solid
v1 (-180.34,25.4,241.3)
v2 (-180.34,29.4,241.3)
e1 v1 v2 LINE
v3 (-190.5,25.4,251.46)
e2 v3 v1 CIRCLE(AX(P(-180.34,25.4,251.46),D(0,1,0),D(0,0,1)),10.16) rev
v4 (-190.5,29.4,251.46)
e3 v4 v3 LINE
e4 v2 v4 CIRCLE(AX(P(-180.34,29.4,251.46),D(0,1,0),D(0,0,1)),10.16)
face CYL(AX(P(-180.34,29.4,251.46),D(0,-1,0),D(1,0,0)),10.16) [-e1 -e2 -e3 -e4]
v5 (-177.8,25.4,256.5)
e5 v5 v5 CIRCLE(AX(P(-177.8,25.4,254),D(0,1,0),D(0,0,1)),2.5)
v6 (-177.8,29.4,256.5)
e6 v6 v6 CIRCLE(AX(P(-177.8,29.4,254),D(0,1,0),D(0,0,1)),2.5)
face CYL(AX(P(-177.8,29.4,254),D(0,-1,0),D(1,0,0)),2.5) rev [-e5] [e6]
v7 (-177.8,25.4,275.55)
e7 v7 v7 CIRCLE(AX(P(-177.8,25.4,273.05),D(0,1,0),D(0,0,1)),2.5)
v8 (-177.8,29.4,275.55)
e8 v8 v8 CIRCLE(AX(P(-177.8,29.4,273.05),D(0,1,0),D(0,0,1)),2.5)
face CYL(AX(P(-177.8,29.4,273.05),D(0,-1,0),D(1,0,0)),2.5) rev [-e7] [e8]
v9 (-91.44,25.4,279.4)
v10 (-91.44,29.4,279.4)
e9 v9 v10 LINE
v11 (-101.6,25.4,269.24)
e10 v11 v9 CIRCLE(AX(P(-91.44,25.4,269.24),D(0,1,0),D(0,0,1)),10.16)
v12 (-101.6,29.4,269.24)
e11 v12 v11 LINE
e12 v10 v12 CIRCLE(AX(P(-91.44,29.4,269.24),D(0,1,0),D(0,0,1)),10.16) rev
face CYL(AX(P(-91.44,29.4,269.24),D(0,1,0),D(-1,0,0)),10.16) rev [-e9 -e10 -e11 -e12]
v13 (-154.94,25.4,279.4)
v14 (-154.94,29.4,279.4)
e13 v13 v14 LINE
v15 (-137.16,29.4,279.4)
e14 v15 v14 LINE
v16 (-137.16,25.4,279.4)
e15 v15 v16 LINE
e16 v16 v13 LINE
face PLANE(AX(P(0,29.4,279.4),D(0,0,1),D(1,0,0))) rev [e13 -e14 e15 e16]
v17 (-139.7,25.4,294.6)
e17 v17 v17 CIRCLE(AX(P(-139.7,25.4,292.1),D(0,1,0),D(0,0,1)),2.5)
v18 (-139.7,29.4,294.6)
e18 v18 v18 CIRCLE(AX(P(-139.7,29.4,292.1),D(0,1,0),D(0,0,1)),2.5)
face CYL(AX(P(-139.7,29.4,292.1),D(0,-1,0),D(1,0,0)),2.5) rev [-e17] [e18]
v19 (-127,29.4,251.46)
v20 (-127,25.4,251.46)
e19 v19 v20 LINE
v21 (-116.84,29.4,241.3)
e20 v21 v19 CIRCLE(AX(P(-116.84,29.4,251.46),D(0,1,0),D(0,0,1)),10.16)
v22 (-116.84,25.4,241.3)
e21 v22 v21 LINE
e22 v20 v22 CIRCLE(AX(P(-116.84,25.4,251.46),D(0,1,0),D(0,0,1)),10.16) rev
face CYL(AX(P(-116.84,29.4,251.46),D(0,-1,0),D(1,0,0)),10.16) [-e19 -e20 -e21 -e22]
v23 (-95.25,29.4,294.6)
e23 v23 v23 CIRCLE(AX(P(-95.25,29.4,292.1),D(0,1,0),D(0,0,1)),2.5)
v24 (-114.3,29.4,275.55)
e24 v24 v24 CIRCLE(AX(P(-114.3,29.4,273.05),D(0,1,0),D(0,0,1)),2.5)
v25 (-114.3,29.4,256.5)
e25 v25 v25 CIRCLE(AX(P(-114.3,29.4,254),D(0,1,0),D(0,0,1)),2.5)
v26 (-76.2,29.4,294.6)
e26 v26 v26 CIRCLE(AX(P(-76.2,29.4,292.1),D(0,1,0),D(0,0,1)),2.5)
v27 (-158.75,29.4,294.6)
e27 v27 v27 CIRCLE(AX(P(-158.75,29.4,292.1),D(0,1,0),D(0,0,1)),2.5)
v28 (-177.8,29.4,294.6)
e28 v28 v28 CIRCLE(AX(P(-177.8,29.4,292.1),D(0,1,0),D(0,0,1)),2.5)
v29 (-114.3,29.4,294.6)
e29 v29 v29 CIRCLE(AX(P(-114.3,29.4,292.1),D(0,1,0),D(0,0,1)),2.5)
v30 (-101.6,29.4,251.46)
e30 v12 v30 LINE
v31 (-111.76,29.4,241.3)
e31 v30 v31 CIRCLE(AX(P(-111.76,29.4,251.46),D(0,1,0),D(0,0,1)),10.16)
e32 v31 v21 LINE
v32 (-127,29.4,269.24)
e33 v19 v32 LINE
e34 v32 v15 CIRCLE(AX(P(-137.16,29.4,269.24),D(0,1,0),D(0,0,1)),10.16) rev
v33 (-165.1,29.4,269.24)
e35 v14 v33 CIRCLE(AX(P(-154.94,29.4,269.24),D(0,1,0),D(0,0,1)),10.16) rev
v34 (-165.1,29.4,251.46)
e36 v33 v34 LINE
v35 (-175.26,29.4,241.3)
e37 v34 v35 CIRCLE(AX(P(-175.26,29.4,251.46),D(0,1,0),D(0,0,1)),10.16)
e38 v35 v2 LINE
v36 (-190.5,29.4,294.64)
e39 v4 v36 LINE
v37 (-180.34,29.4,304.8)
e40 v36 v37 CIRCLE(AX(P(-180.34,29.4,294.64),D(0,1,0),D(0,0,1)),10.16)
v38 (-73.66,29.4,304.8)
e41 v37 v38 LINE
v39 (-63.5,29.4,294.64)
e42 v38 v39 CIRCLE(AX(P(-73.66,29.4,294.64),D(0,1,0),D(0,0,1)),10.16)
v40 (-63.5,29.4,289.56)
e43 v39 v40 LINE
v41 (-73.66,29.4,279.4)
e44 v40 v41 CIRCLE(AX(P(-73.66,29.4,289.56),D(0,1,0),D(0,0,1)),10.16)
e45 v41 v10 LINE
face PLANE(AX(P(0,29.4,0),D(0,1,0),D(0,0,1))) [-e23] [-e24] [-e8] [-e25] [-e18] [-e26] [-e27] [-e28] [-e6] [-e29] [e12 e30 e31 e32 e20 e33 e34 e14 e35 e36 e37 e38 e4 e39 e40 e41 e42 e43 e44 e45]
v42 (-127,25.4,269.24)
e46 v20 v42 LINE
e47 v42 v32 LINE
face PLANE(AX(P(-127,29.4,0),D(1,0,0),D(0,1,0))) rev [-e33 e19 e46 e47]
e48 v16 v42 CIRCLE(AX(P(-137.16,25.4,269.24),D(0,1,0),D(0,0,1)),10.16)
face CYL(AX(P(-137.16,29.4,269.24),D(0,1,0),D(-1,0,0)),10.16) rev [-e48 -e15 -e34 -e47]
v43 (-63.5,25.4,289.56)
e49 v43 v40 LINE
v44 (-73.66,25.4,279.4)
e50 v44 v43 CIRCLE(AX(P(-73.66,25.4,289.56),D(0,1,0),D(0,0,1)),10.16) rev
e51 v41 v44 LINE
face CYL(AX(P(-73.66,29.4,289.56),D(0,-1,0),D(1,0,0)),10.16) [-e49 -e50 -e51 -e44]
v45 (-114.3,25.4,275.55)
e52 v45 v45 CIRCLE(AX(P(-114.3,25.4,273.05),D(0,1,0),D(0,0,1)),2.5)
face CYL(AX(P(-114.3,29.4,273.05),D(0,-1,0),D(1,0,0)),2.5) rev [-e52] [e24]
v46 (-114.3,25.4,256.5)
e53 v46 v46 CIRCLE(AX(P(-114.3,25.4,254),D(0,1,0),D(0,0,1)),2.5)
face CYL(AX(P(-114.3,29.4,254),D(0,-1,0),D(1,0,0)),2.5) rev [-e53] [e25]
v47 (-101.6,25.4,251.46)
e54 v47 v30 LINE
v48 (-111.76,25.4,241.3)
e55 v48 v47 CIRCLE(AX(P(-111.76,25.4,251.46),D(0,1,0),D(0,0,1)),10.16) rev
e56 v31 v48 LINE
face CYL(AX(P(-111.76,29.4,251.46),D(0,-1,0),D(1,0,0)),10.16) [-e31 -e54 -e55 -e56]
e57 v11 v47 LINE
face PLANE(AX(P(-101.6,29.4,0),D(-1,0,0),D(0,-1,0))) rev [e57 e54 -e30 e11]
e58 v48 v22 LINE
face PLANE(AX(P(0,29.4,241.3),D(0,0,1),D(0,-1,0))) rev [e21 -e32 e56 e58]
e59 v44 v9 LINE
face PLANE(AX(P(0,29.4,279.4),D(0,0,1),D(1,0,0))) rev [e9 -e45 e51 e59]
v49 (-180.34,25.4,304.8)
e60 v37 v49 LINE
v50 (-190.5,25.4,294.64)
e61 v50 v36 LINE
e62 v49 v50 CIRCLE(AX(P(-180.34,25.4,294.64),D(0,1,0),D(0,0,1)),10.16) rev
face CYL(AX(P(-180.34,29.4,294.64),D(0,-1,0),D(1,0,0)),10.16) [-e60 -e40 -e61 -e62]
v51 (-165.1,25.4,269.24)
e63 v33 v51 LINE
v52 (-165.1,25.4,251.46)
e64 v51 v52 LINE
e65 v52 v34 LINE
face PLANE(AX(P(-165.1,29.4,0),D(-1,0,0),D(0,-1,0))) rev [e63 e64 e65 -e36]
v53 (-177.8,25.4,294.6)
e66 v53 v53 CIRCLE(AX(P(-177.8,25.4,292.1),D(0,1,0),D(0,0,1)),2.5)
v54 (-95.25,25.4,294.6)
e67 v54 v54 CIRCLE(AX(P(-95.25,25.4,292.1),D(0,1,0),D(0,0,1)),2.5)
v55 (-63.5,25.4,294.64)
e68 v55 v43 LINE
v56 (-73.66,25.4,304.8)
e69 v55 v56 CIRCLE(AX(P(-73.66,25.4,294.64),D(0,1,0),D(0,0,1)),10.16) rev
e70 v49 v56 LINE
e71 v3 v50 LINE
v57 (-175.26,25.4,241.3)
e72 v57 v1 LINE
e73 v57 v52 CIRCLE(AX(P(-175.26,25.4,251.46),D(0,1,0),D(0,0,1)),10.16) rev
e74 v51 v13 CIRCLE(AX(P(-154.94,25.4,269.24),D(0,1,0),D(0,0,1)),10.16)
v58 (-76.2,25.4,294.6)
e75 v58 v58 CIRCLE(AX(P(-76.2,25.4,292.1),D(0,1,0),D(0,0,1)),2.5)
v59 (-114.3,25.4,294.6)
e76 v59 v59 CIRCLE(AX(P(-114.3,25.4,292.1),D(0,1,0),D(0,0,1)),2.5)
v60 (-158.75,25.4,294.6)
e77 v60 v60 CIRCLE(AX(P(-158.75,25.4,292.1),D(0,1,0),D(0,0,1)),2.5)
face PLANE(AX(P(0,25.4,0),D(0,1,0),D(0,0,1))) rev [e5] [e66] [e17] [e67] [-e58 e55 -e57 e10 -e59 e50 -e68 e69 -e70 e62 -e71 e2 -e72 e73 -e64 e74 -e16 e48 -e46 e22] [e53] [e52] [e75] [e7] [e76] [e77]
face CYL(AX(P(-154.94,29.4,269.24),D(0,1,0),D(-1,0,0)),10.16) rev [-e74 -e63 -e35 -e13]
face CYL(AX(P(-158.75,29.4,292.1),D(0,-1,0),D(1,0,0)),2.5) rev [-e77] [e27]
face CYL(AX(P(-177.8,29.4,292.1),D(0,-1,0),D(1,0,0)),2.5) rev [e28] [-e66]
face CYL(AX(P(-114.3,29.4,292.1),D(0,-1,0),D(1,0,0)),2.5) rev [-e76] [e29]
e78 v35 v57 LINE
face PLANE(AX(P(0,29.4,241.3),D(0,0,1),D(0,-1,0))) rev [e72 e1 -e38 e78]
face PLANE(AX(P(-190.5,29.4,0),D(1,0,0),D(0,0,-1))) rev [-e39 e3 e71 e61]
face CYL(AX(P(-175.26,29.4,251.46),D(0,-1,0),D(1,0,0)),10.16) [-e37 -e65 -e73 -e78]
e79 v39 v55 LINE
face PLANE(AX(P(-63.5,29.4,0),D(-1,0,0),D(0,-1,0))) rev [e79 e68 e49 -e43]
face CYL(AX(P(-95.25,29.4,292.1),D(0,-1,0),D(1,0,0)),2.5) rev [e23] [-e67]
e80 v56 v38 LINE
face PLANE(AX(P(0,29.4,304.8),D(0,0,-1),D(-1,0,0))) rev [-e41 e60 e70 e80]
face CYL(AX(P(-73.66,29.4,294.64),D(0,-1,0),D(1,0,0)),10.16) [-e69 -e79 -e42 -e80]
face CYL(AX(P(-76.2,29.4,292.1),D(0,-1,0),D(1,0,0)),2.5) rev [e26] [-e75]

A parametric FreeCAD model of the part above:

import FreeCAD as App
import Part
import Sketcher
Q = App.Units.Quantity


def edges_at(feature, points):
    """Names of the edges that pass closest to the given points."""
    edges = feature.Shape.Edges
    near = lambda p: min(range(len(edges)), key=lambda i: edges[i].distToShape(Part.Vertex(*p))[0])
    return sorted({f"Edge{near(p) + 1}" for p in points})

doc = App.newDocument("Part")
body = doc.addObject("PartDesign::Body", "Body")

# Sketch on XZ plane
sketch1 = body.newObject("Sketcher::SketchObject", "Sketch")
sketch1.AttachmentSupport = (doc.getObject("XZ_Plane"), [""])
sketch1.MapMode = "FlatFace"
sketch1.AttachmentOffset = App.Placement(App.Vector(0, 0, -1 * 25.4), App.Rotation())
sketch1.addGeometry([
    Part.LineSegment(App.Vector(-190.5, 241.3, 0), App.Vector(-190.5, 304.8, 0)),  # 0
    Part.LineSegment(App.Vector(-190.5, 304.8, 0), App.Vector(-63.5, 304.8, 0)),  # 1
    Part.LineSegment(App.Vector(-63.5, 304.8, 0), App.Vector(-63.5, 279.4, 0)),  # 2
    Part.LineSegment(App.Vector(-63.5, 279.4, 0), App.Vector(-101.6, 279.4, 0)),  # 3
    Part.LineSegment(App.Vector(-101.6, 279.4, 0), App.Vector(-101.6, 241.3, 0)),  # 4
    Part.LineSegment(App.Vector(-101.6, 241.3, 0), App.Vector(-127, 241.3, 0)),  # 5
    Part.LineSegment(App.Vector(-127, 241.3, 0), App.Vector(-127, 279.4, 0)),  # 6
    Part.LineSegment(App.Vector(-127, 279.4, 0), App.Vector(-165.1, 279.4, 0)),  # 7
    Part.LineSegment(App.Vector(-165.1, 279.4, 0), App.Vector(-165.1, 241.3, 0)),  # 8
    Part.LineSegment(App.Vector(-165.1, 241.3, 0), App.Vector(-190.5, 241.3, 0)),  # 9
    Part.Circle(App.Vector(-177.8, 292.1, 0), App.Vector(0, 0, 1), 2.5),  # 10
    Part.Circle(App.Vector(-158.8, 292.1, 0), App.Vector(0, 0, 1), 2.5),  # 11
    Part.Circle(App.Vector(-139.7, 292.1, 0), App.Vector(0, 0, 1), 2.5),  # 12
    Part.Circle(App.Vector(-114.3, 292.1, 0), App.Vector(0, 0, 1), 2.5),  # 13
    Part.Circle(App.Vector(-95.2, 292.1, 0), App.Vector(0, 0, 1), 2.5),  # 14
    Part.Circle(App.Vector(-76.2, 292.1, 0), App.Vector(0, 0, 1), 2.5),  # 15
    Part.Circle(App.Vector(-177.8, 273.1, 0), App.Vector(0, 0, 1), 2.5),  # 16
    Part.Circle(App.Vector(-177.8, 254, 0), App.Vector(0, 0, 1), 2.5),  # 17
    Part.Circle(App.Vector(-114.3, 273.1, 0), App.Vector(0, 0, 1), 2.5),  # 18
    Part.Circle(App.Vector(-114.3, 254, 0), App.Vector(0, 0, 1), 2.5),  # 19
], False)
sketch1.addConstraint([
    Sketcher.Constraint("Coincident", 0, 2, 1, 1),
    Sketcher.Constraint("Coincident", 1, 2, 2, 1),
    Sketcher.Constraint("Coincident", 2, 2, 3, 1),
    Sketcher.Constraint("Coincident", 3, 2, 4, 1),
    Sketcher.Constraint("Coincident", 4, 2, 5, 1),
    Sketcher.Constraint("Coincident", 5, 2, 6, 1),
    Sketcher.Constraint("Coincident", 6, 2, 7, 1),
    Sketcher.Constraint("Coincident", 7, 2, 8, 1),
    Sketcher.Constraint("Coincident", 8, 2, 9, 1),
    Sketcher.Constraint("Coincident", 9, 2, 0, 1),
    Sketcher.Constraint("Vertical", 0),
    Sketcher.Constraint("Horizontal", 1),
    Sketcher.Constraint("Vertical", 2),
    Sketcher.Constraint("Horizontal", 3),
    Sketcher.Constraint("Vertical", 4),
    Sketcher.Constraint("Horizontal", 5),
    Sketcher.Constraint("Vertical", 6),
    Sketcher.Constraint("Horizontal", 7),
    Sketcher.Constraint("Vertical", 8),
    Sketcher.Constraint("Horizontal", 9),
    Sketcher.Constraint("Equal", 10, 11),
    Sketcher.Constraint("Equal", 11, 12),
    Sketcher.Constraint("Equal", 12, 13),
    Sketcher.Constraint("Equal", 13, 14),
    Sketcher.Constraint("Equal", 14, 15),
    Sketcher.Constraint("Equal", 15, 16),
    Sketcher.Constraint("Equal", 16, 17),
    Sketcher.Constraint("Equal", 17, 18),
    Sketcher.Constraint("Equal", 18, 19),
    Sketcher.Constraint("Horizontal", 10, 3, 11, 3),
    Sketcher.Constraint("Horizontal", 11, 3, 12, 3),
    Sketcher.Constraint("Horizontal", 12, 3, 13, 3),
    Sketcher.Constraint("Horizontal", 13, 3, 14, 3),
    Sketcher.Constraint("Horizontal", 14, 3, 15, 3),
    Sketcher.Constraint("Horizontal", 16, 3, 18, 3),
    Sketcher.Constraint("Horizontal", 17, 3, 19, 3),
    Sketcher.Constraint("Horizontal", 3, 2, 6, 2),
    Sketcher.Constraint("Horizontal", 5, 2, 8, 2),
    Sketcher.Constraint("Vertical", 10, 3, 16, 3),
    Sketcher.Constraint("Vertical", 16, 3, 17, 3),
    Sketcher.Constraint("Vertical", 13, 3, 18, 3),
    Sketcher.Constraint("Vertical", 18, 3, 19, 3),
    Sketcher.Constraint("Equal", 3, 7),
    Sketcher.Constraint("Equal", 5, 9),
    Sketcher.Constraint("Equal", 9, 2),
    Sketcher.Constraint("Equal", 7, 4),
    Sketcher.Constraint("DistanceX", 1, 1, 1, 2, Q("5 in")),
    Sketcher.Constraint("DistanceX", 5, 2, 5, 1, Q("1 in")),
    Sketcher.Constraint("DistanceX", 10, 3, -1, 1, Q("7 in")),
    Sketcher.Constraint("DistanceX", 15, 3, -1, 1, Q("3 in")),
    Sketcher.Constraint("DistanceY", -1, 1, 17, 3, Q("10 in")),
    Sketcher.Constraint("DistanceY", -1, 1, 0, 2, Q("12 in")),
    Sketcher.Constraint("DistanceX", 3, 2, -1, 1, Q("4 in")),
    Sketcher.Constraint("DistanceX", 12, 3, 13, 3, Q("1 in")),
    Sketcher.Constraint("DistanceX", 0, 2, 12, 3, Q("2 in")),
    Sketcher.Constraint("DistanceY", 4, 2, 14, 3, Q("2 in")),
    Sketcher.Constraint("DistanceX", 11, 3, 14, 3, Q("2.5 in")),
    Sketcher.Constraint("Diameter", 10, Q("5 mm")),
    Sketcher.Constraint("DistanceX", 11, 3, -1, 1, Q("6.25 in")),
    Sketcher.Constraint("DistanceY", -1, 1, 16, 3, Q("10.75 in")),
])
pad1 = body.newObject("PartDesign::Pad", "Pad")
pad1.Profile = sketch1
pad1.Length = 4
pad1.Reversed = True
doc.recompute()

fillet = body.newObject("PartDesign::Fillet", "Fillet")
fillet.Base = (pad1, edges_at(pad1, [
    (-190.5, 27.4, 304.8),
    (-190.5, 27.4, 241.3),
    (-165.1, 27.4, 241.3),
    (-165.1, 27.4, 279.4),
    (-127, 27.4, 279.4),
    (-127, 27.4, 241.3),
    (-101.6, 27.4, 241.3),
    (-101.6, 27.4, 279.4),
    (-63.5, 27.4, 279.4),
    (-63.5, 27.4, 304.8),
]))
fillet.Radius = Q("0.4 in")

doc.recompute()
